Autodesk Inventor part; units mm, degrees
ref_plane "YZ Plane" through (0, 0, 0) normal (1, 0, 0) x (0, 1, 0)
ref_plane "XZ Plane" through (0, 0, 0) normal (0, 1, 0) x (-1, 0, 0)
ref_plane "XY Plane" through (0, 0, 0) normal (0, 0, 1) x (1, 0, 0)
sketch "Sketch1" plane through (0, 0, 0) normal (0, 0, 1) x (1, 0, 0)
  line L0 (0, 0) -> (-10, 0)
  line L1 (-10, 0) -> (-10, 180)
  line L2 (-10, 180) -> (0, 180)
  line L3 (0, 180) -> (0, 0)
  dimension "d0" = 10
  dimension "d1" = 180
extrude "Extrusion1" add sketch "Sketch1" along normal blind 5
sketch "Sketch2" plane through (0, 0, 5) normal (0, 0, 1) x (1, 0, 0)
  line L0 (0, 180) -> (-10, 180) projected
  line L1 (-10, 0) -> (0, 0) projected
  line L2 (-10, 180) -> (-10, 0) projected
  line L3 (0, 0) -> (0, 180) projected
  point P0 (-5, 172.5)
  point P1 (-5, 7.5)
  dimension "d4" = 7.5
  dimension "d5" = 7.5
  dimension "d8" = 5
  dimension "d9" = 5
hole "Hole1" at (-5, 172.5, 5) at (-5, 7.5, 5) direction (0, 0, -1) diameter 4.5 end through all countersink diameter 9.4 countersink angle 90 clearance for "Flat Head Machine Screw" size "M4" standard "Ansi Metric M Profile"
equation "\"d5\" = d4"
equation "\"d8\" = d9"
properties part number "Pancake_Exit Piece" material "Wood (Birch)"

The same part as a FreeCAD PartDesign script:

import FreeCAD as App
import Part
import Sketcher

V = App.Vector

doc = App.newDocument("Part")
body = doc.addObject("PartDesign::Body", "Body")

# Sketch on XY plane
sketch1 = body.newObject("Sketcher::SketchObject", "Sketch")
sketch1.AttachmentSupport = (doc.getObject("XY_Plane"), [""])
sketch1.MapMode = "FlatFace"
sketch1.addGeometry(Part.LineSegment(V(-10, 0, 0), V(0, 0, 0)), False)
sketch1.addGeometry(Part.LineSegment(V(0, 0, 0), V(0, 180, 0)), False)
sketch1.addGeometry(Part.LineSegment(V(0, 180, 0), V(-10, 180, 0)), False)
sketch1.addGeometry(Part.LineSegment(V(-10, 180, 0), V(-10, 0, 0)), False)
sketch1.addConstraint(Sketcher.Constraint("Coincident", 0, 2, 1, 1))
sketch1.addConstraint(Sketcher.Constraint("Coincident", 1, 2, 2, 1))
sketch1.addConstraint(Sketcher.Constraint("Coincident", 2, 2, 3, 1))
sketch1.addConstraint(Sketcher.Constraint("Coincident", 3, 2, 0, 1))
sketch1.addConstraint(Sketcher.Constraint("Horizontal", 0))
sketch1.addConstraint(Sketcher.Constraint("Vertical", 1))
sketch1.addConstraint(Sketcher.Constraint("Horizontal", 2))
sketch1.addConstraint(Sketcher.Constraint("Vertical", 3))
sketch1.addConstraint(Sketcher.Constraint("Coincident", 0, 2, -1, 1))
sketch1.addConstraint(Sketcher.Constraint("DistanceX", 0, 1, 0, 2, 10.0))
sketch1.addConstraint(Sketcher.Constraint("DistanceY", 1, 1, 1, 2, 180.0))
pad1 = body.newObject("PartDesign::Pad", "Pad")
pad1.Profile = sketch1
pad1.Length = 5

# Sketch on XY plane
sketch2 = body.newObject("Sketcher::SketchObject", "Sketch001")
sketch2.AttachmentSupport = (doc.getObject("XY_Plane"), [""])
sketch2.MapMode = "FlatFace"
sketch2.AttachmentOffset = App.Placement(V(0, 0, 5), App.Rotation())
sketch2.addGeometry(Part.Circle(V(-5, 172.5, 0), V(0, 0, 1), 2.2), False)
sketch2.addGeometry(Part.Circle(V(-5, 7.5, 0), V(0, 0, 1), 2.2), False)
sketch2.addConstraint(Sketcher.Constraint("Equal", 0, 1))
sketch2.addConstraint(Sketcher.Constraint("Vertical", 0, 3, 1, 3))
sketch2.addConstraint(Sketcher.Constraint("Diameter", 0, 4.5))
sketch2.addConstraint(Sketcher.Constraint("DistanceX", 0, 3, -1, 1, 5.0))
sketch2.addConstraint(Sketcher.Constraint("DistanceY", 1, 3, 0, 3, 165.0))
sketch2.addConstraint(Sketcher.Constraint("DistanceY", -1, 1, 0, 3, 172.5))
doc.recompute()
hole = body.newObject("PartDesign::Hole", "Hole")
hole.Profile = sketch2
hole.ThreadType = "None"
hole.Diameter = 4.5
hole.DepthType = "ThroughAll"
hole.HoleCutType = "Countersink"
hole.HoleCutDiameter = 9.4
hole.HoleCutCountersinkAngle = 90

doc.recompute()
